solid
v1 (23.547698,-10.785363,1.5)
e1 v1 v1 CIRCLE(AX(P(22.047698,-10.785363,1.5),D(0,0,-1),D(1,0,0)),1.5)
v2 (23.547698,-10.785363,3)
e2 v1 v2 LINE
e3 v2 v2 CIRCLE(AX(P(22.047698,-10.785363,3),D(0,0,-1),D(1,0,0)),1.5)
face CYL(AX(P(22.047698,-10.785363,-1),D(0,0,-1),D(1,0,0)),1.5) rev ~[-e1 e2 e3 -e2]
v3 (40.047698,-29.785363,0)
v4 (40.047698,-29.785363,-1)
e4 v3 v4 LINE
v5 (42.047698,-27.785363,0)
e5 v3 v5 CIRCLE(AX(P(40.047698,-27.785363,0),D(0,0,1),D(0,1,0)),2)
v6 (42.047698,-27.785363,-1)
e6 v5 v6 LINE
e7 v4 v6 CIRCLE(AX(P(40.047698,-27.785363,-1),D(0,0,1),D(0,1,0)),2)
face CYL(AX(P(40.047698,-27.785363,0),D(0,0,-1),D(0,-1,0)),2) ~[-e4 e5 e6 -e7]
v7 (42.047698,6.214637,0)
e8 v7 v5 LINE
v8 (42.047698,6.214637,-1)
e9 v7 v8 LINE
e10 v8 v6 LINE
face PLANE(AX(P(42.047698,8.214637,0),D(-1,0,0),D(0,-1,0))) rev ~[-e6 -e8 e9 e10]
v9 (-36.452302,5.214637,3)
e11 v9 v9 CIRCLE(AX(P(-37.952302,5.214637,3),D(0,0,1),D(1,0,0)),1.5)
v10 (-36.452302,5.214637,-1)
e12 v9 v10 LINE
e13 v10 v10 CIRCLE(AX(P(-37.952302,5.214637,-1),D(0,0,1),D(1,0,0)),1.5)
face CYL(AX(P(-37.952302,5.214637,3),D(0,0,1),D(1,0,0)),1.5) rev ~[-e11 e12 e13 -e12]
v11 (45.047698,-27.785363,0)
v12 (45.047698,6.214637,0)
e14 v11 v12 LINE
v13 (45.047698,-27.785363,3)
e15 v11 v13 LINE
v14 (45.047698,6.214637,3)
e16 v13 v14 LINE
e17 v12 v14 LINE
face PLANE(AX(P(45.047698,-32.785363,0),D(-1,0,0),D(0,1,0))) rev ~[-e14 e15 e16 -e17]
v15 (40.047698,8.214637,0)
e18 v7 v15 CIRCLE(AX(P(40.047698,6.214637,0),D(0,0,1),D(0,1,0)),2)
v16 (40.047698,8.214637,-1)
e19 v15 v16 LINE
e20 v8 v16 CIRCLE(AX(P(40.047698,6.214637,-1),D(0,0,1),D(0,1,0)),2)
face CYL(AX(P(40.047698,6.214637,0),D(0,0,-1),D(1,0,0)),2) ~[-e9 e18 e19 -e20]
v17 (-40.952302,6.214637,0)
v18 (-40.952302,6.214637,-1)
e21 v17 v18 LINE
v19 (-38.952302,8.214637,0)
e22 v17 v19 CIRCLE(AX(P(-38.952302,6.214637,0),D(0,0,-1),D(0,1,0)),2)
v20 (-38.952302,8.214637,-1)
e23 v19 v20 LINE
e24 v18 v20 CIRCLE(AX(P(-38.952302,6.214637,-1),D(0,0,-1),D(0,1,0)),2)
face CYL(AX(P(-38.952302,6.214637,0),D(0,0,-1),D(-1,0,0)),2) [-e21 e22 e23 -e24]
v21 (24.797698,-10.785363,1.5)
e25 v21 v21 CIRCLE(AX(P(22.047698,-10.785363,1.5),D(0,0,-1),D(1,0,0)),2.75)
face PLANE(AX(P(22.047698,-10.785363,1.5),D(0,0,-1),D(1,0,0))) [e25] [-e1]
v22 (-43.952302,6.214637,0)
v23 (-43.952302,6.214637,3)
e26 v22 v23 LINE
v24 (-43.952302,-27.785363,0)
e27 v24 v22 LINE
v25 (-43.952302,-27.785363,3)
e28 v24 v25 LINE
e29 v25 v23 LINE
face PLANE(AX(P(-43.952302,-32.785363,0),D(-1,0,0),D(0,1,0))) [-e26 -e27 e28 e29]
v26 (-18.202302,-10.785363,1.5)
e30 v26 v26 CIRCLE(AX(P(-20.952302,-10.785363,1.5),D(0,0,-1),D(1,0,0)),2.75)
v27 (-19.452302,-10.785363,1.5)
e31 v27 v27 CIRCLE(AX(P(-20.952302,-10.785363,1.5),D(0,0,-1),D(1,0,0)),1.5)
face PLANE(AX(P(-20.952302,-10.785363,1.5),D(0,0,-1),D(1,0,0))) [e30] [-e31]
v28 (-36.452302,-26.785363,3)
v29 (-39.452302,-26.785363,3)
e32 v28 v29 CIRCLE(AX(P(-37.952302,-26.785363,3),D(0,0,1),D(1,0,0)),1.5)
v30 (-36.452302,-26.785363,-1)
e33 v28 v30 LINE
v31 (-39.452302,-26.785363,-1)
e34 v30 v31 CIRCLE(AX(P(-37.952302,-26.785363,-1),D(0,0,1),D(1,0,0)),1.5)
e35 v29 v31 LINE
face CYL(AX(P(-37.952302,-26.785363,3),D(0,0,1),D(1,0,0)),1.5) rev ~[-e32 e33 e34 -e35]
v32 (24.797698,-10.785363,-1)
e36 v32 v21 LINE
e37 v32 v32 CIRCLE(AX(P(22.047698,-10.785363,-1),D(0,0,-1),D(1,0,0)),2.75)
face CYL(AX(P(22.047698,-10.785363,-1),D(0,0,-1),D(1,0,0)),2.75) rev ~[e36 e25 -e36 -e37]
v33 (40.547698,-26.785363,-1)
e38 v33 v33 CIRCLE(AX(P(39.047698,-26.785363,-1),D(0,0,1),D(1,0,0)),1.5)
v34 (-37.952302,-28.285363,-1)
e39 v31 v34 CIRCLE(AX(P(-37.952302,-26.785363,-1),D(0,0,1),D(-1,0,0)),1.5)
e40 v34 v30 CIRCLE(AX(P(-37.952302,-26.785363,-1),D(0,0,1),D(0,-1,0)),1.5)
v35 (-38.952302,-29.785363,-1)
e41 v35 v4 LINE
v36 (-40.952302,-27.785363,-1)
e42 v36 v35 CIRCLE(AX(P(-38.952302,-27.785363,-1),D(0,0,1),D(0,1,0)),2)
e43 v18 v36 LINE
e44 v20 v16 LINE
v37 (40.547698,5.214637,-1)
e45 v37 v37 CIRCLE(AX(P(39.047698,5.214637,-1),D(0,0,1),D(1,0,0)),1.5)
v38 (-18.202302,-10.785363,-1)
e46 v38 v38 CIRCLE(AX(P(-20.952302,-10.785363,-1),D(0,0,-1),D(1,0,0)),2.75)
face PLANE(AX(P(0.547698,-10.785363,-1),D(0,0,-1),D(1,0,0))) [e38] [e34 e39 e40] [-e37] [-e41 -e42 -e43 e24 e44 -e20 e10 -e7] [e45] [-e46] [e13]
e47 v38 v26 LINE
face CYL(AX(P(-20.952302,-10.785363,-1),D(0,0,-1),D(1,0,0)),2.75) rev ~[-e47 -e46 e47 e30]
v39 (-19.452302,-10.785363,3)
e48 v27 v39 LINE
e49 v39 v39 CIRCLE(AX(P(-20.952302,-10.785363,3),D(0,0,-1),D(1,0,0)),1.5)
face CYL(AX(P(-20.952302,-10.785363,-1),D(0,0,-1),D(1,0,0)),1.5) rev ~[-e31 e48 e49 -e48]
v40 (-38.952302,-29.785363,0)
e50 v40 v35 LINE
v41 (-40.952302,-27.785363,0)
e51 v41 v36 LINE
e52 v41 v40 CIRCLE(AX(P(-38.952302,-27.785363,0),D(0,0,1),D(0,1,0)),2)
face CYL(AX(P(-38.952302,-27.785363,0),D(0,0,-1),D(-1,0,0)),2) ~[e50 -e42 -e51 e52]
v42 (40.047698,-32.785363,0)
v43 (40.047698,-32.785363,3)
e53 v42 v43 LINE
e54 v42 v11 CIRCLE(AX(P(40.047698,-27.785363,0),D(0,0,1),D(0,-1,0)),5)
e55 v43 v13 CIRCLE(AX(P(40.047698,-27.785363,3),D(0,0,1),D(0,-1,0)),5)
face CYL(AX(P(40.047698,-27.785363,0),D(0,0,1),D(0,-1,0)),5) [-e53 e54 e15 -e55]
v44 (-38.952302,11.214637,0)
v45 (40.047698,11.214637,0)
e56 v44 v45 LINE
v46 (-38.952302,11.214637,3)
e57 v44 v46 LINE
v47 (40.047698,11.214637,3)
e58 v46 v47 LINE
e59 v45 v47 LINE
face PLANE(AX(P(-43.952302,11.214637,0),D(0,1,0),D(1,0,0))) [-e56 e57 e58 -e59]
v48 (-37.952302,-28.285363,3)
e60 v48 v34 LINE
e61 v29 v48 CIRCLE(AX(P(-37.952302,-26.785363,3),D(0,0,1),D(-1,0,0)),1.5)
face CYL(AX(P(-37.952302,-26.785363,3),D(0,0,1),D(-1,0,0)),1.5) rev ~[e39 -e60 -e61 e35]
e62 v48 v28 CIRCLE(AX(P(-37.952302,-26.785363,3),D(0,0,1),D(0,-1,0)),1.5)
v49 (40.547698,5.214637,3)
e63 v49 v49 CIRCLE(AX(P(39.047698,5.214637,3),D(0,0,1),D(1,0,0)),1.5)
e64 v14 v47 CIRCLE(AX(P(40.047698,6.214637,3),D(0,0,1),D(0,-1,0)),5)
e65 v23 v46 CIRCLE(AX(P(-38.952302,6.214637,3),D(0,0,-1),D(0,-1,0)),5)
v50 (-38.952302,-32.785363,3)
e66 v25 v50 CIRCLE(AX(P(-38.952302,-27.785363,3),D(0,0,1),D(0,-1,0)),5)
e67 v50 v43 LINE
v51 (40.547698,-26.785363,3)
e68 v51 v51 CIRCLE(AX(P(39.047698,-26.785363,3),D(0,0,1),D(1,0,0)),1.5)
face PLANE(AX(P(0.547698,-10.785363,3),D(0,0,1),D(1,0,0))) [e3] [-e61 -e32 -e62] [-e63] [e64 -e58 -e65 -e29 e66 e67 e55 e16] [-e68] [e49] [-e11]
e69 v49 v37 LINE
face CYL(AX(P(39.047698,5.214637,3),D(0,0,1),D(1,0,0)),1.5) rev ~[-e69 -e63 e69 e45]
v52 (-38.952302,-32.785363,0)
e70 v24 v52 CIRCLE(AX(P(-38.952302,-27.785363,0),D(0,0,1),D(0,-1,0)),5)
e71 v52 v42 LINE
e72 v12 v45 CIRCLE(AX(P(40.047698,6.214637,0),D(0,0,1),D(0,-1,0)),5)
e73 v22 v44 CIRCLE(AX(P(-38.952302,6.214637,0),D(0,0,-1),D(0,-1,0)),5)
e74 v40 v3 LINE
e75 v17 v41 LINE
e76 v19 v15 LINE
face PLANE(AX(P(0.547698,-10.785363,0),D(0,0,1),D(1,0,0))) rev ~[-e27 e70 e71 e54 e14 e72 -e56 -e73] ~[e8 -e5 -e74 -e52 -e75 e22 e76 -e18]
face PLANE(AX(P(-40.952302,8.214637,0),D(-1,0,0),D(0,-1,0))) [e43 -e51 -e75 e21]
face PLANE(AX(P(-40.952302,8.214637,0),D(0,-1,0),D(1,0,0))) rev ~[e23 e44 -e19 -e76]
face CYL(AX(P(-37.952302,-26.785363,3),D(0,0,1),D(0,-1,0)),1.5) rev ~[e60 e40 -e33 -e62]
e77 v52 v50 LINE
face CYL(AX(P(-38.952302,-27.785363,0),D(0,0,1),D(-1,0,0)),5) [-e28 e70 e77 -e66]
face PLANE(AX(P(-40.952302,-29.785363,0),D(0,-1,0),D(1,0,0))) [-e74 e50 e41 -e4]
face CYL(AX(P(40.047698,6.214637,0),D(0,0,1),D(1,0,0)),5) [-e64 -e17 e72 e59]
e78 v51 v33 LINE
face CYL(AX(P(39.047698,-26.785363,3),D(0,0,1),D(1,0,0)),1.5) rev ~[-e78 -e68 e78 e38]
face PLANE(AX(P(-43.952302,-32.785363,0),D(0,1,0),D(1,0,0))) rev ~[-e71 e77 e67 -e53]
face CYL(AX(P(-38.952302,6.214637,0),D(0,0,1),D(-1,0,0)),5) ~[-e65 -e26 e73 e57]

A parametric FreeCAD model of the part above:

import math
import FreeCAD as App
import Part
import Sketcher

V = App.Vector


def edges_at(feature, points):
    """Names of the edges that pass closest to the given points."""
    edges = feature.Shape.Edges
    near = lambda p: min(range(len(edges)), key=lambda i: edges[i].distToShape(Part.Vertex(*p))[0])
    return sorted({f"Edge{near(p) + 1}" for p in points})


def add_polygon(sketch, points):
    """Adds a closed chain of lines whose ends are joined by coincident constraints."""
    first, n = sketch.GeometryCount, len(points)
    for a, b in zip(points, points[1:] + points[:1]):
        sketch.addGeometry(Part.LineSegment(App.Vector(*a, 0), App.Vector(*b, 0)), False)
    for i in range(n):
        sketch.addConstraint(Sketcher.Constraint("Coincident", first + i, 2, first + (i + 1) % n, 1))

doc = App.newDocument("Part")
body = doc.addObject("PartDesign::Body", "Body")

# Sketch on XY plane
sketch1 = doc.addObject("Sketcher::SketchObject", "Sketch")
body.addObject(sketch1)
sketch1.AttachmentSupport = (doc.XY_Plane, [""])
sketch1.MapMode = "FlatFace"
add_polygon(sketch1, [(-44, 11), (-44, -33), (45, -33), (45, 11)])  # lines 0-3
sketch1.addConstraint([
    Sketcher.Constraint("Vertical", 0),
    Sketcher.Constraint("Horizontal", 1),
    Sketcher.Constraint("Vertical", 2),
    Sketcher.Constraint("Horizontal", 3),
    Sketcher.Constraint("DistanceX", 1, 1, 1, 2, 89.0),
    Sketcher.Constraint("DistanceY", 0, 2, 0, 1, 44.0),
    Sketcher.Constraint("DistanceX", 0, 2, -1, 1, 43.952302),
    Sketcher.Constraint("DistanceY", 0, 2, -1, 1, 32.785363),
])
pad1 = doc.addObject("PartDesign::Pad", "Pad")
body.addObject(pad1)
pad1.Profile = sketch1
pad1.Length = 3
doc.recompute()

fillet = doc.addObject("PartDesign::Fillet", "Fillet")
body.addObject(fillet)
fillet.Base = (pad1, edges_at(pad1, [
    (-43.952, 11.215, 1.5),
    (45.048, 11.215, 1.5),
    (45.048, -32.785, 1.5),
    (-43.952, -32.785, 1.5),
]))
fillet.Radius = 5

# Sketch on XY plane
sketch2 = doc.addObject("Sketcher::SketchObject", "Sketch001")
body.addObject(sketch2)
sketch2.AttachmentSupport = (doc.XY_Plane, [""])
sketch2.MapMode = "FlatFace"
add_polygon(sketch2, [(-41, -30), (-41, 8), (42, 8), (42, -30)])  # lines 0-3
sketch2.addConstraint([
    Sketcher.Constraint("Vertical", 0),
    Sketcher.Constraint("Horizontal", 1),
    Sketcher.Constraint("Vertical", 2),
    Sketcher.Constraint("Horizontal", 3),
    Sketcher.Constraint("DistanceX", 1, 1, 1, 2, 83.0),
    Sketcher.Constraint("DistanceY", 0, 1, 0, 2, 38.0),
    Sketcher.Constraint("DistanceX", 0, 2, -1, 1, 40.952302),
    Sketcher.Constraint("DistanceY", -1, 1, 0, 2, 8.214637),
])
pad2 = doc.addObject("PartDesign::Pad", "Pad001")
body.addObject(pad2)
pad2.Profile = sketch2
pad2.Length = 1
pad2.Reversed = True
doc.recompute()

fillet2 = doc.addObject("PartDesign::Fillet", "Fillet001")
body.addObject(fillet2)
fillet2.Base = (pad2, edges_at(pad2, [
    (-40.952, -29.785, -0.5),
    (-40.952, 8.215, -0.5),
    (42.048, 8.215, -0.5),
    (42.048, -29.785, -0.5),
]))
fillet2.Radius = 2

# Sketch on XY plane
sketch3 = doc.addObject("Sketcher::SketchObject", "Sketch002")
body.addObject(sketch3)
sketch3.AttachmentSupport = (doc.XY_Plane, [""])
sketch3.MapMode = "FlatFace"
sketch3.AttachmentOffset = App.Placement(V(0, 0, -1), App.Rotation())
sketch3.addGeometry([
    Part.Circle(V(22, -10.8, 0), V(0, 0, 1), 1.5),
    Part.Circle(V(-21, -10.8, 0), V(0, 0, 1), 1.5),
], False)
sketch3.addConstraint([
    Sketcher.Constraint("Equal", 0, 1),
    Sketcher.Constraint("Horizontal", 0, 3, 1, 3),
    Sketcher.Constraint("Diameter", 0, 3.0),
    Sketcher.Constraint("DistanceX", 1, 3, 0, 3, 43.0),
    Sketcher.Constraint("DistanceX", -1, 1, 0, 3, 22.047698),
    Sketcher.Constraint("DistanceY", 0, 3, -1, 1, 10.785363),
])
pocket1 = doc.addObject("PartDesign::Pocket", "Pocket")
body.addObject(pocket1)
pocket1.Profile = sketch3
pocket1.Length = 25
pocket1.Reversed = True

# Sketch on XY plane
sketch4 = doc.addObject("Sketcher::SketchObject", "Sketch003")
body.addObject(sketch4)
sketch4.AttachmentSupport = (doc.XY_Plane, [""])
sketch4.MapMode = "FlatFace"
sketch4.AttachmentOffset = App.Placement(V(0, 0, -1), App.Rotation())
sketch4.addGeometry([
    Part.Circle(V(-21, -10.8, 0), V(0, 0, 1), 2.8),
    Part.Circle(V(22, -10.8, 0), V(0, 0, 1), 2.8),
], False)
sketch4.addConstraint([
    Sketcher.Constraint("Equal", 0, 1),
    Sketcher.Constraint("Horizontal", 0, 3, 1, 3),
    Sketcher.Constraint("Diameter", 0, 5.5),
    Sketcher.Constraint("DistanceX", 0, 3, 1, 3, 43.0),
    Sketcher.Constraint("DistanceX", 0, 3, -1, 1, 20.952302),
    Sketcher.Constraint("DistanceY", 0, 3, -1, 1, 10.785363),
])
pocket2 = doc.addObject("PartDesign::Pocket", "Pocket001")
body.addObject(pocket2)
pocket2.Profile = sketch4
pocket2.Length = 2.5
pocket2.Reversed = True

# Sketch on XY plane
sketch5 = doc.addObject("Sketcher::SketchObject", "Sketch004")
body.addObject(sketch5)
sketch5.AttachmentSupport = (doc.XY_Plane, [""])
sketch5.MapMode = "FlatFace"
sketch5.AttachmentOffset = App.Placement(V(0, 0, 3), App.Rotation())
sketch5.addGeometry([
    Part.ArcOfCircle(Part.Circle(V(-38, -26.8, 0), V(0, 0, 1), 1.5), math.radians(0), math.radians(180)),  # 0
    Part.ArcOfCircle(Part.Circle(V(-38, -26.8, 0), V(0, 0, 1), 1.5), math.radians(-180), math.radians(-90)),  # 1
    Part.ArcOfCircle(Part.Circle(V(-38, -26.8, 0), V(0, 0, 1), 1.5), math.radians(-90), math.radians(0)),  # 2
    Part.Circle(V(-38, 5.2, 0), V(0, 0, 1), 1.5),  # 3
    Part.Circle(V(39, -26.8, 0), V(0, 0, 1), 1.5),  # 4
    Part.Circle(V(39, 5.2, 0), V(0, 0, 1), 1.5),  # 5
], False)
sketch5.addConstraint([
    Sketcher.Constraint("Tangent", 0, 2, 1, 1),
    Sketcher.Constraint("Tangent", 1, 2, 2, 1),
    Sketcher.Constraint("Tangent", 2, 2, 0, 1),
    Sketcher.Constraint("Equal", 2, 3),
    Sketcher.Constraint("Equal", 3, 4),
    Sketcher.Constraint("Equal", 4, 5),
    Sketcher.Constraint("Horizontal", 2, 3, 4, 3),
    Sketcher.Constraint("Horizontal", 3, 3, 5, 3),
    Sketcher.Constraint("Horizontal", 4, 3, 0, 2),
    Sketcher.Constraint("Horizontal", 0, 2, 2, 2),
    Sketcher.Constraint("Vertical", 2, 3, 3, 3),
    Sketcher.Constraint("Vertical", 4, 3, 5, 3),
    Sketcher.Constraint("Vertical", 3, 3, 1, 2),
    Sketcher.Constraint("Diameter", 3, 3.0),
    Sketcher.Constraint("DistanceY", 1, 3, 3, 3, 32.0),
    Sketcher.Constraint("DistanceX", 0, 3, 4, 3, 77.0),
    Sketcher.Constraint("DistanceX", 0, 3, -1, 1, 37.952302),
    Sketcher.Constraint("DistanceY", 0, 3, -1, 1, 26.785363),
])
pocket3 = doc.addObject("PartDesign::Pocket", "Pocket002")
body.addObject(pocket3)
pocket3.Profile = sketch5
pocket3.Length = 25

doc.recompute()
